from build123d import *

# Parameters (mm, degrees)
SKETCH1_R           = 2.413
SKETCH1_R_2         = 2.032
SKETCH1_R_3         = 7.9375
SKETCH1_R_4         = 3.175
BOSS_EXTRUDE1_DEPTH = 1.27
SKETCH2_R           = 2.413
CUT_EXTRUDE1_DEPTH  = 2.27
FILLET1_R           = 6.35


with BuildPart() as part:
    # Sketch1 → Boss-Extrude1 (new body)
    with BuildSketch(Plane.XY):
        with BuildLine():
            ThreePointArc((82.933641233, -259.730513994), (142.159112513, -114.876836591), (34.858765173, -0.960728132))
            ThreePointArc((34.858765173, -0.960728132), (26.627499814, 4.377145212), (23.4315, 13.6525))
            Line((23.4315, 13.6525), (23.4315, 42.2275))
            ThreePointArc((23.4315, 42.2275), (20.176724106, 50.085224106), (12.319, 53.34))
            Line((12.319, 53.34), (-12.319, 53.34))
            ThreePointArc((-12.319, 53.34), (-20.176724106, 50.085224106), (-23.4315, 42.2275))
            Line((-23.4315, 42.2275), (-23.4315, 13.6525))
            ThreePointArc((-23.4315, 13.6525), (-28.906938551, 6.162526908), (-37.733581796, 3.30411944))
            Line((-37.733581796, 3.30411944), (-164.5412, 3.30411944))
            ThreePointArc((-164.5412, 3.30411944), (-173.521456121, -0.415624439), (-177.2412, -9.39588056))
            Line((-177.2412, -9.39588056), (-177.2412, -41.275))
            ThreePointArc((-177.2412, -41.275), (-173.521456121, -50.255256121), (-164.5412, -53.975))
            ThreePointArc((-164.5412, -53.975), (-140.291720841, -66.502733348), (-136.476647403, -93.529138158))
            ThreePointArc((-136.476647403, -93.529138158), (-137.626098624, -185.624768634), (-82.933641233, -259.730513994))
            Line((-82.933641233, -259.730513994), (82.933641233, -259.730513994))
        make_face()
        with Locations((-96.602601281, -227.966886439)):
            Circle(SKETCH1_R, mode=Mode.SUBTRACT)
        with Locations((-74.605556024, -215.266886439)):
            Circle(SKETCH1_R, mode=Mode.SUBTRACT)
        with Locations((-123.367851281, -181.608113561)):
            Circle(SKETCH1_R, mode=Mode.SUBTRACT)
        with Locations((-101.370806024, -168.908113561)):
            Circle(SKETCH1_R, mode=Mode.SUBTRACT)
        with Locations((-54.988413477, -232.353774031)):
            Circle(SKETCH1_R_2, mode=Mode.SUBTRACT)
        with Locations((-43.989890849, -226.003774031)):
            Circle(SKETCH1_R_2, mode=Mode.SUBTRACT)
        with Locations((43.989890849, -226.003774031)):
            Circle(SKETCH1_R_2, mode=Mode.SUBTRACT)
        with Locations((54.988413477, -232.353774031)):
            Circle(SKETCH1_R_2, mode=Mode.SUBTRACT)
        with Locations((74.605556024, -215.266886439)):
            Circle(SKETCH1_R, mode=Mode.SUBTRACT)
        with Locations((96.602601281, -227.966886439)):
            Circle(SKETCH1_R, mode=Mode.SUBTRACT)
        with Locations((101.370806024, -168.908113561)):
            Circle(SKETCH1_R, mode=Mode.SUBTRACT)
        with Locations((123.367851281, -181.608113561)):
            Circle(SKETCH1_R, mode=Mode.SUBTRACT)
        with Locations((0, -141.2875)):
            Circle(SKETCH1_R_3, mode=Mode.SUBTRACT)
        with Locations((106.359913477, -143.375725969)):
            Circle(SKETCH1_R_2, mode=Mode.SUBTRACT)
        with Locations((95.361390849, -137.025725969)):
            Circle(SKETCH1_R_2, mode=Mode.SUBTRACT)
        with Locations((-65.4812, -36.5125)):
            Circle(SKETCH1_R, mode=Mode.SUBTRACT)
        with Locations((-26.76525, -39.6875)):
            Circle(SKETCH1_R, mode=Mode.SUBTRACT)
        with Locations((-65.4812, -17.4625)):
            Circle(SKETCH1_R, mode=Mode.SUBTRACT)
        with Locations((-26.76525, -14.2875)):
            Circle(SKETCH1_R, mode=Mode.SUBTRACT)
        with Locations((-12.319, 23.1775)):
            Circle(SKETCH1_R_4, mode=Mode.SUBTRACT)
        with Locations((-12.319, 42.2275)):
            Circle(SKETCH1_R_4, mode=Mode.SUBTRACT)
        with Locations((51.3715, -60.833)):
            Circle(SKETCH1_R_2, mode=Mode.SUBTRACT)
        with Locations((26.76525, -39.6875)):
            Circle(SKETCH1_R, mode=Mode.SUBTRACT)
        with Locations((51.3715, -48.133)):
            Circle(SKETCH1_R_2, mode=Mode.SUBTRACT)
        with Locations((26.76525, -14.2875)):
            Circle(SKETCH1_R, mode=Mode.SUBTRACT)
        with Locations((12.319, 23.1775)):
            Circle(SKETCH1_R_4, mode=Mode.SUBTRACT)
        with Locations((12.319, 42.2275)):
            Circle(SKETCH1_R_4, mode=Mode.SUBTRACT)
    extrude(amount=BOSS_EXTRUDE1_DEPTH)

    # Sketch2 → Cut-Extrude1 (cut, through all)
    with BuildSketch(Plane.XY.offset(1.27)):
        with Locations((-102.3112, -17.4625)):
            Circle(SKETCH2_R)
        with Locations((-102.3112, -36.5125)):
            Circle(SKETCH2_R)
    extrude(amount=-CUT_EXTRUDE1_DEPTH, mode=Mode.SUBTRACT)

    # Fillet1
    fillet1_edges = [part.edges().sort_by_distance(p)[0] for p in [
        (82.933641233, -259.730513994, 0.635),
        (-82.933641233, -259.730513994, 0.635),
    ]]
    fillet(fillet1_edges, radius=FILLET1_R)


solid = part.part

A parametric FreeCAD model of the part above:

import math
import FreeCAD as App
import Part
import Sketcher
from FreeCAD import Vector
Q = App.Units.Quantity


def edges_at(feature, points):
    """Names of the edges that pass closest to the given points."""
    edges = feature.Shape.Edges
    near = lambda p: min(range(len(edges)), key=lambda i: edges[i].distToShape(Part.Vertex(*p))[0])
    return sorted({f"Edge{near(p) + 1}" for p in points})

doc = App.newDocument("Part")
params = doc.addObject("Spreadsheet::Sheet", "Params")
for row, (alias, value) in enumerate([
    ("sketch1_radius", "0.5 in"),
    ("sketch1_diameter", "0.19 in"),
    ("sketch1_diameter2", "0.16 in"),
    ("sketch1_diameter3", "0.25 in"),
    ("sketch1_diameter4", "0.625 in"),
    ("pad1_length", "0.05 in"),
    ("sketch2_diameter", "0.19 in"),
    ("fillet_radius", "0.25 in"),
], start=1):
    params.set(f"A{row}", alias)
    params.set(f"B{row}", "=" + value)
    params.setAlias(f"B{row}", alias)

body = doc.addObject("PartDesign::Body", "Body")

# Sketch on XY plane
sketch1 = body.newObject("Sketcher::SketchObject", "Sketch")
sketch1.AttachmentSupport = (doc.getObject("XY_Plane"), [""])
sketch1.MapMode = "FlatFace"
sketch1.addGeometry([
    Part.ArcOfCircle(Part.Circle(Vector(0, -141.3, 0), Vector(0, 0, 1), 144.6), math.radians(-55), math.radians(76)),  # 0
    Part.ArcOfCircle(Part.Circle(Vector(38.5, 13.7, 0), Vector(0, 0, 1), 15.1), math.radians(-180), math.radians(-104)),  # 1
    Part.LineSegment(Vector(23.4, 13.7, 0), Vector(23.4, 42.2, 0)),  # 2
    Part.ArcOfCircle(Part.Circle(Vector(12.3, 42.2, 0), Vector(0, 0, 1), 11.1), math.radians(0), math.radians(90)),  # 3
    Part.LineSegment(Vector(12.3, 53.3, 0), Vector(-12.3, 53.3, 0)),  # 4
    Part.ArcOfCircle(Part.Circle(Vector(-12.3, 42.2, 0), Vector(0, 0, 1), 11.1), math.radians(90), math.radians(180)),  # 5
    Part.LineSegment(Vector(-23.4, 42.2, 0), Vector(-23.4, 13.7, 0)),  # 6
    Part.ArcOfCircle(Part.Circle(Vector(-37.7, 18.4, 0), Vector(0, 0, 1), 15.1), math.radians(-90), math.radians(-18)),  # 7
    Part.LineSegment(Vector(-37.7, 3.3, 0), Vector(-164.5, 3.3, 0)),  # 8
    Part.ArcOfCircle(Part.Circle(Vector(-164.5, -9.4, 0), Vector(0, 0, 1), 12.7), math.radians(90), math.radians(180)),  # 9
    Part.LineSegment(Vector(-177.2, -9.4, 0), Vector(-177.2, -41.3, 0)),  # 10
    Part.ArcOfCircle(Part.Circle(Vector(-164.5, -41.3, 0), Vector(0, 0, 1), 12.7), math.radians(180), math.radians(270)),  # 11
    Part.ArcOfCircle(Part.Circle(Vector(-164.5, -83.7, 0), Vector(0, 0, 1), 29.7), math.radians(-19), math.radians(90)),  # 12
    Part.ArcOfCircle(Part.Circle(Vector(0, -141.3, 0), Vector(0, 0, 1), 144.6), math.radians(161), math.radians(235)),  # 13
    Part.LineSegment(Vector(-82.9, -259.7, 0), Vector(82.9, -259.7, 0)),  # 14
    Part.Circle(Vector(-96.6, -228, 0), Vector(0, 0, 1), 2.4),  # 15
    Part.Circle(Vector(-74.6, -215.3, 0), Vector(0, 0, 1), 2.4),  # 16
    Part.Circle(Vector(-123.4, -181.6, 0), Vector(0, 0, 1), 2.4),  # 17
    Part.Circle(Vector(-101.4, -168.9, 0), Vector(0, 0, 1), 2.4),  # 18
    Part.Circle(Vector(-55, -232.4, 0), Vector(0, 0, 1), 2),  # 19
    Part.Circle(Vector(-44, -226, 0), Vector(0, 0, 1), 2),  # 20
    Part.Circle(Vector(44, -226, 0), Vector(0, 0, 1), 2),  # 21
    Part.Circle(Vector(55, -232.4, 0), Vector(0, 0, 1), 2),  # 22
    Part.Circle(Vector(74.6, -215.3, 0), Vector(0, 0, 1), 2.4),  # 23
    Part.Circle(Vector(96.6, -228, 0), Vector(0, 0, 1), 2.4),  # 24
    Part.Circle(Vector(101.4, -168.9, 0), Vector(0, 0, 1), 2.4),  # 25
    Part.Circle(Vector(123.4, -181.6, 0), Vector(0, 0, 1), 2.4),  # 26
    Part.Circle(Vector(0, -141.3, 0), Vector(0, 0, 1), 7.9),  # 27
    Part.Circle(Vector(106.4, -143.4, 0), Vector(0, 0, 1), 2),  # 28
    Part.Circle(Vector(95.4, -137, 0), Vector(0, 0, 1), 2),  # 29
    Part.Circle(Vector(-65.5, -36.5, 0), Vector(0, 0, 1), 2.4),  # 30
    Part.Circle(Vector(-26.8, -39.7, 0), Vector(0, 0, 1), 2.4),  # 31
    Part.Circle(Vector(-65.5, -17.5, 0), Vector(0, 0, 1), 2.4),  # 32
    Part.Circle(Vector(-26.8, -14.3, 0), Vector(0, 0, 1), 2.4),  # 33
    Part.Circle(Vector(-12.3, 23.2, 0), Vector(0, 0, 1), 3.2),  # 34
    Part.Circle(Vector(-12.3, 42.2, 0), Vector(0, 0, 1), 3.2),  # 35
    Part.Circle(Vector(51.4, -60.8, 0), Vector(0, 0, 1), 2),  # 36
    Part.Circle(Vector(26.8, -39.7, 0), Vector(0, 0, 1), 2.4),  # 37
    Part.Circle(Vector(51.4, -48.1, 0), Vector(0, 0, 1), 2),  # 38
    Part.Circle(Vector(26.8, -14.3, 0), Vector(0, 0, 1), 2.4),  # 39
    Part.Circle(Vector(12.3, 23.2, 0), Vector(0, 0, 1), 3.2),  # 40
    Part.Circle(Vector(12.3, 42.2, 0), Vector(0, 0, 1), 3.2),  # 41
], False)
sketch1.addConstraint([
    Sketcher.Constraint("Tangent", 0, 2, 1, 2),
    Sketcher.Constraint("Tangent", 1, 1, 2, 1),
    Sketcher.Constraint("Tangent", 2, 2, 3, 1),
    Sketcher.Constraint("Tangent", 3, 2, 4, 1),
    Sketcher.Constraint("Tangent", 4, 2, 5, 1),
    Sketcher.Constraint("Tangent", 5, 2, 6, 1),
    Sketcher.Constraint("Coincident", 6, 2, 7, 2),
    Sketcher.Constraint("Tangent", 7, 1, 8, 1),
    Sketcher.Constraint("Tangent", 8, 2, 9, 1),
    Sketcher.Constraint("Tangent", 9, 2, 10, 1),
    Sketcher.Constraint("Tangent", 10, 2, 11, 1),
    Sketcher.Constraint("Tangent", 11, 2, 12, 2),
    Sketcher.Constraint("Tangent", 12, 1, 13, 1),
    Sketcher.Constraint("Coincident", 13, 2, 14, 1),
    Sketcher.Constraint("Coincident", 14, 2, 0, 1),
    Sketcher.Constraint("Vertical", 2),
    Sketcher.Constraint("Horizontal", 4),
    Sketcher.Constraint("Vertical", 6),
    Sketcher.Constraint("Horizontal", 8),
    Sketcher.Constraint("Vertical", 10),
    Sketcher.Constraint("Horizontal", 14),
    Sketcher.Constraint("Coincident", 13, 3, 0, 3),
    Sketcher.Constraint("Coincident", 27, 3, 0, 3),
    Sketcher.Constraint("Coincident", 35, 3, 5, 3),
    Sketcher.Constraint("Coincident", 41, 3, 3, 3),
    Sketcher.Constraint("Equal", 3, 5),
    Sketcher.Constraint("Equal", 1, 7),
    Sketcher.Constraint("Equal", 9, 11),
    Sketcher.Constraint("Equal", 0, 13),
    Sketcher.Constraint("Equal", 15, 16),
    Sketcher.Constraint("Equal", 16, 17),
    Sketcher.Constraint("Equal", 17, 18),
    Sketcher.Constraint("Equal", 19, 20),
    Sketcher.Constraint("Equal", 20, 21),
    Sketcher.Constraint("Equal", 21, 22),
    Sketcher.Constraint("Equal", 18, 23),
    Sketcher.Constraint("Equal", 23, 24),
    Sketcher.Constraint("Equal", 24, 25),
    Sketcher.Constraint("Equal", 25, 26),
    Sketcher.Constraint("Equal", 22, 28),
    Sketcher.Constraint("Equal", 28, 29),
    Sketcher.Constraint("Equal", 26, 30),
    Sketcher.Constraint("Equal", 30, 31),
    Sketcher.Constraint("Equal", 31, 32),
    Sketcher.Constraint("Equal", 32, 33),
    Sketcher.Constraint("Equal", 34, 35),
    Sketcher.Constraint("Equal", 29, 36),
    Sketcher.Constraint("Equal", 33, 37),
    Sketcher.Constraint("Equal", 36, 38),
    Sketcher.Constraint("Equal", 37, 39),
    Sketcher.Constraint("Equal", 35, 40),
    Sketcher.Constraint("Equal", 40, 41),
    Sketcher.Constraint("Symmetric", 20, 3, 21, 3, -2),
    Sketcher.Constraint("Symmetric", 19, 3, 22, 3, -2),
    Sketcher.Constraint("Symmetric", 16, 3, 23, 3, -2),
    Sketcher.Constraint("Symmetric", 15, 3, 24, 3, -2),
    Sketcher.Constraint("Symmetric", 18, 3, 25, 3, -2),
    Sketcher.Constraint("Symmetric", 17, 3, 26, 3, -2),
    Sketcher.Constraint("Symmetric", 31, 3, 37, 3, -2),
    Sketcher.Constraint("Symmetric", 33, 3, 39, 3, -2),
    Sketcher.Constraint("Symmetric", 34, 3, 40, 3, -2),
    Sketcher.Constraint("Symmetric", 1, 1, 6, 2, -2),
    Sketcher.Constraint("PointOnObject", 0, 3, -2),
    Sketcher.Constraint("Vertical", 11, 3, 12, 3),
    Sketcher.Constraint("Vertical", 30, 3, 32, 3),
    Sketcher.Constraint("Vertical", 31, 3, 33, 3),
    Sketcher.Constraint("Vertical", 5, 3, 34, 3),
    Sketcher.Constraint("Vertical", 36, 3, 38, 3),
    Sketcher.Constraint("Radius", 9, Q("0.5 in")),
    Sketcher.Constraint("Diameter", 15, Q("0.19 in")),
    Sketcher.Constraint("Diameter", 19, Q("0.16 in")),
    Sketcher.Constraint("Diameter", 34, Q("0.25 in")),
    Sketcher.Constraint("Diameter", 27, Q("0.625 in")),
    Sketcher.Constraint("Radius", 3, Q("0.4375 in")),
    Sketcher.Constraint("DistanceY", 31, 3, 33, 3, Q("1 in")),
    Sketcher.Constraint("DistanceX", 4, 2, 4, 1, Q("0.97 in")),
    Sketcher.Constraint("DistanceY", -1, 1, 3, 2, Q("2.1 in")),
    Sketcher.Constraint("DistanceY", 0, 3, 1, 3, Q("6.1 in")),
    Sketcher.Constraint("DistanceY", 15, 3, 16, 3, Q("0.5 in")),
    Sketcher.Constraint("DistanceY", 17, 3, 18, 3, Q("0.5 in")),
    Sketcher.Constraint("DistanceY", 30, 3, 5, 3, Q("3.1 in")),
    Sketcher.Constraint("DistanceX", 11, 3, 30, 3, Q("3.9 in")),
    Sketcher.Constraint("DistanceY", 31, 3, 1, 3, Q("2.1 in")),
    Sketcher.Constraint("DistanceY", 36, 3, 38, 3, Q("0.5 in")),
    Sketcher.Constraint("DistanceY", 2, 1, 2, 2, Q("1.125 in")),
    Sketcher.Constraint("DistanceY", 19, 3, 20, 3, Q("0.25 in")),
    Sketcher.Constraint("DistanceY", 28, 3, 29, 3, Q("0.25 in")),
    Sketcher.Constraint("DistanceY", 30, 3, 32, 3, Q("0.75 in")),
    Sketcher.Constraint("DistanceY", 34, 3, 5, 3, Q("0.75 in")),
    Sketcher.Constraint("DistanceX", 9, 3, -1, 1, Q("6.478 in")),
    Sketcher.Constraint("DistanceY", 11, 3, -1, 1, Q("1.625 in")),
    Sketcher.Constraint("DistanceY", 36, 3, -1, 1, Q("2.395 in")),
    Sketcher.Constraint("Radius", 0, Q("144.591619 mm")),
    Sketcher.Constraint("DistanceX", 37, 3, 36, 3, Q("0.96875 in")),
    Sketcher.Constraint("DistanceX", -1, 1, 36, 3, Q("2.0225 in")),
    Sketcher.Constraint("DistanceX", 22, 3, 28, 3, Q("2.0225 in")),
    Sketcher.Constraint("DistanceX", 8, 2, 8, 1, Q("126.807618 mm")),
    Sketcher.Constraint("DistanceX", 15, 3, -1, 1, Q("96.602601 mm")),
    Sketcher.Constraint("DistanceY", 15, 3, 12, 3, Q("144.258601 mm")),
    Sketcher.Constraint("DistanceY", 13, 2, 17, 3, Q("78.1224 mm")),
    Sketcher.Constraint("DistanceX", 14, 1, 14, 2, Q("165.867282 mm")),
    Sketcher.Constraint("DistanceX", 17, 3, -1, 1, Q("123.367851 mm")),
    Sketcher.Constraint("DistanceX", 20, 3, -1, 1, Q("43.989891 mm")),
    Sketcher.Constraint("DistanceX", -1, 1, 29, 3, Q("95.361391 mm")),
    Sketcher.Constraint("DistanceX", 18, 3, 16, 3, Q("26.76525 mm")),
    Sketcher.Constraint("DistanceY", 19, 3, 18, 3, Q("63.44566 mm")),
    Sketcher.Constraint("DistanceY", 23, 3, 28, 3, Q("71.89116 mm")),
    Sketcher.Constraint("DistanceX", 12, 1, 18, 3, Q("35.105841 mm")),
    Sketcher.Constraint("DistanceX", 19, 3, -1, 1, Q("54.988413 mm")),
])
sketch1.setExpression("Constraints[68]", "Params.sketch1_radius")
sketch1.setExpression("Constraints[69]", "Params.sketch1_diameter")
sketch1.setExpression("Constraints[70]", "Params.sketch1_diameter2")
sketch1.setExpression("Constraints[71]", "Params.sketch1_diameter3")
sketch1.setExpression("Constraints[72]", "Params.sketch1_diameter4")
pad1 = body.newObject("PartDesign::Pad", "Pad")
pad1.Profile = sketch1
pad1.setExpression("Length", "Params.pad1_length")

# Sketch on XY plane
sketch2 = body.newObject("Sketcher::SketchObject", "Sketch001")
sketch2.AttachmentSupport = (doc.getObject("XY_Plane"), [""])
sketch2.MapMode = "FlatFace"
sketch2.AttachmentOffset = App.Placement(Vector(0, 0, 0.05 * 25.4), App.Rotation())
sketch2.addGeometry([
    Part.Circle(Vector(-102.3, -17.5, 0), Vector(0, 0, 1), 2.4),
    Part.Circle(Vector(-102.3, -36.5, 0), Vector(0, 0, 1), 2.4),
], False)
sketch2.addConstraint([
    Sketcher.Constraint("Equal", 0, 1),
    Sketcher.Constraint("Vertical", 0, 3, 1, 3),
    Sketcher.Constraint("Diameter", 0, Q("0.19 in")),
    Sketcher.Constraint("DistanceY", 1, 3, 0, 3, Q("0.75 in")),
    Sketcher.Constraint("DistanceX", 0, 3, -1, 1, Q("4.028 in")),
    Sketcher.Constraint("DistanceY", 0, 3, -1, 1, Q("0.6875 in")),
])
sketch2.setExpression("Constraints[2]", "Params.sketch2_diameter")
pocket1 = body.newObject("PartDesign::Pocket", "Pocket")
pocket1.Profile = sketch2
pocket1.Type = "ThroughAll"
doc.recompute()

fillet = body.newObject("PartDesign::Fillet", "Fillet")
fillet.Base = (pocket1, edges_at(pocket1, [(82.934, -259.731, 0.635), (-82.934, -259.731, 0.635)]))
fillet.setExpression("Radius", "Params.fillet_radius")

doc.recompute()
